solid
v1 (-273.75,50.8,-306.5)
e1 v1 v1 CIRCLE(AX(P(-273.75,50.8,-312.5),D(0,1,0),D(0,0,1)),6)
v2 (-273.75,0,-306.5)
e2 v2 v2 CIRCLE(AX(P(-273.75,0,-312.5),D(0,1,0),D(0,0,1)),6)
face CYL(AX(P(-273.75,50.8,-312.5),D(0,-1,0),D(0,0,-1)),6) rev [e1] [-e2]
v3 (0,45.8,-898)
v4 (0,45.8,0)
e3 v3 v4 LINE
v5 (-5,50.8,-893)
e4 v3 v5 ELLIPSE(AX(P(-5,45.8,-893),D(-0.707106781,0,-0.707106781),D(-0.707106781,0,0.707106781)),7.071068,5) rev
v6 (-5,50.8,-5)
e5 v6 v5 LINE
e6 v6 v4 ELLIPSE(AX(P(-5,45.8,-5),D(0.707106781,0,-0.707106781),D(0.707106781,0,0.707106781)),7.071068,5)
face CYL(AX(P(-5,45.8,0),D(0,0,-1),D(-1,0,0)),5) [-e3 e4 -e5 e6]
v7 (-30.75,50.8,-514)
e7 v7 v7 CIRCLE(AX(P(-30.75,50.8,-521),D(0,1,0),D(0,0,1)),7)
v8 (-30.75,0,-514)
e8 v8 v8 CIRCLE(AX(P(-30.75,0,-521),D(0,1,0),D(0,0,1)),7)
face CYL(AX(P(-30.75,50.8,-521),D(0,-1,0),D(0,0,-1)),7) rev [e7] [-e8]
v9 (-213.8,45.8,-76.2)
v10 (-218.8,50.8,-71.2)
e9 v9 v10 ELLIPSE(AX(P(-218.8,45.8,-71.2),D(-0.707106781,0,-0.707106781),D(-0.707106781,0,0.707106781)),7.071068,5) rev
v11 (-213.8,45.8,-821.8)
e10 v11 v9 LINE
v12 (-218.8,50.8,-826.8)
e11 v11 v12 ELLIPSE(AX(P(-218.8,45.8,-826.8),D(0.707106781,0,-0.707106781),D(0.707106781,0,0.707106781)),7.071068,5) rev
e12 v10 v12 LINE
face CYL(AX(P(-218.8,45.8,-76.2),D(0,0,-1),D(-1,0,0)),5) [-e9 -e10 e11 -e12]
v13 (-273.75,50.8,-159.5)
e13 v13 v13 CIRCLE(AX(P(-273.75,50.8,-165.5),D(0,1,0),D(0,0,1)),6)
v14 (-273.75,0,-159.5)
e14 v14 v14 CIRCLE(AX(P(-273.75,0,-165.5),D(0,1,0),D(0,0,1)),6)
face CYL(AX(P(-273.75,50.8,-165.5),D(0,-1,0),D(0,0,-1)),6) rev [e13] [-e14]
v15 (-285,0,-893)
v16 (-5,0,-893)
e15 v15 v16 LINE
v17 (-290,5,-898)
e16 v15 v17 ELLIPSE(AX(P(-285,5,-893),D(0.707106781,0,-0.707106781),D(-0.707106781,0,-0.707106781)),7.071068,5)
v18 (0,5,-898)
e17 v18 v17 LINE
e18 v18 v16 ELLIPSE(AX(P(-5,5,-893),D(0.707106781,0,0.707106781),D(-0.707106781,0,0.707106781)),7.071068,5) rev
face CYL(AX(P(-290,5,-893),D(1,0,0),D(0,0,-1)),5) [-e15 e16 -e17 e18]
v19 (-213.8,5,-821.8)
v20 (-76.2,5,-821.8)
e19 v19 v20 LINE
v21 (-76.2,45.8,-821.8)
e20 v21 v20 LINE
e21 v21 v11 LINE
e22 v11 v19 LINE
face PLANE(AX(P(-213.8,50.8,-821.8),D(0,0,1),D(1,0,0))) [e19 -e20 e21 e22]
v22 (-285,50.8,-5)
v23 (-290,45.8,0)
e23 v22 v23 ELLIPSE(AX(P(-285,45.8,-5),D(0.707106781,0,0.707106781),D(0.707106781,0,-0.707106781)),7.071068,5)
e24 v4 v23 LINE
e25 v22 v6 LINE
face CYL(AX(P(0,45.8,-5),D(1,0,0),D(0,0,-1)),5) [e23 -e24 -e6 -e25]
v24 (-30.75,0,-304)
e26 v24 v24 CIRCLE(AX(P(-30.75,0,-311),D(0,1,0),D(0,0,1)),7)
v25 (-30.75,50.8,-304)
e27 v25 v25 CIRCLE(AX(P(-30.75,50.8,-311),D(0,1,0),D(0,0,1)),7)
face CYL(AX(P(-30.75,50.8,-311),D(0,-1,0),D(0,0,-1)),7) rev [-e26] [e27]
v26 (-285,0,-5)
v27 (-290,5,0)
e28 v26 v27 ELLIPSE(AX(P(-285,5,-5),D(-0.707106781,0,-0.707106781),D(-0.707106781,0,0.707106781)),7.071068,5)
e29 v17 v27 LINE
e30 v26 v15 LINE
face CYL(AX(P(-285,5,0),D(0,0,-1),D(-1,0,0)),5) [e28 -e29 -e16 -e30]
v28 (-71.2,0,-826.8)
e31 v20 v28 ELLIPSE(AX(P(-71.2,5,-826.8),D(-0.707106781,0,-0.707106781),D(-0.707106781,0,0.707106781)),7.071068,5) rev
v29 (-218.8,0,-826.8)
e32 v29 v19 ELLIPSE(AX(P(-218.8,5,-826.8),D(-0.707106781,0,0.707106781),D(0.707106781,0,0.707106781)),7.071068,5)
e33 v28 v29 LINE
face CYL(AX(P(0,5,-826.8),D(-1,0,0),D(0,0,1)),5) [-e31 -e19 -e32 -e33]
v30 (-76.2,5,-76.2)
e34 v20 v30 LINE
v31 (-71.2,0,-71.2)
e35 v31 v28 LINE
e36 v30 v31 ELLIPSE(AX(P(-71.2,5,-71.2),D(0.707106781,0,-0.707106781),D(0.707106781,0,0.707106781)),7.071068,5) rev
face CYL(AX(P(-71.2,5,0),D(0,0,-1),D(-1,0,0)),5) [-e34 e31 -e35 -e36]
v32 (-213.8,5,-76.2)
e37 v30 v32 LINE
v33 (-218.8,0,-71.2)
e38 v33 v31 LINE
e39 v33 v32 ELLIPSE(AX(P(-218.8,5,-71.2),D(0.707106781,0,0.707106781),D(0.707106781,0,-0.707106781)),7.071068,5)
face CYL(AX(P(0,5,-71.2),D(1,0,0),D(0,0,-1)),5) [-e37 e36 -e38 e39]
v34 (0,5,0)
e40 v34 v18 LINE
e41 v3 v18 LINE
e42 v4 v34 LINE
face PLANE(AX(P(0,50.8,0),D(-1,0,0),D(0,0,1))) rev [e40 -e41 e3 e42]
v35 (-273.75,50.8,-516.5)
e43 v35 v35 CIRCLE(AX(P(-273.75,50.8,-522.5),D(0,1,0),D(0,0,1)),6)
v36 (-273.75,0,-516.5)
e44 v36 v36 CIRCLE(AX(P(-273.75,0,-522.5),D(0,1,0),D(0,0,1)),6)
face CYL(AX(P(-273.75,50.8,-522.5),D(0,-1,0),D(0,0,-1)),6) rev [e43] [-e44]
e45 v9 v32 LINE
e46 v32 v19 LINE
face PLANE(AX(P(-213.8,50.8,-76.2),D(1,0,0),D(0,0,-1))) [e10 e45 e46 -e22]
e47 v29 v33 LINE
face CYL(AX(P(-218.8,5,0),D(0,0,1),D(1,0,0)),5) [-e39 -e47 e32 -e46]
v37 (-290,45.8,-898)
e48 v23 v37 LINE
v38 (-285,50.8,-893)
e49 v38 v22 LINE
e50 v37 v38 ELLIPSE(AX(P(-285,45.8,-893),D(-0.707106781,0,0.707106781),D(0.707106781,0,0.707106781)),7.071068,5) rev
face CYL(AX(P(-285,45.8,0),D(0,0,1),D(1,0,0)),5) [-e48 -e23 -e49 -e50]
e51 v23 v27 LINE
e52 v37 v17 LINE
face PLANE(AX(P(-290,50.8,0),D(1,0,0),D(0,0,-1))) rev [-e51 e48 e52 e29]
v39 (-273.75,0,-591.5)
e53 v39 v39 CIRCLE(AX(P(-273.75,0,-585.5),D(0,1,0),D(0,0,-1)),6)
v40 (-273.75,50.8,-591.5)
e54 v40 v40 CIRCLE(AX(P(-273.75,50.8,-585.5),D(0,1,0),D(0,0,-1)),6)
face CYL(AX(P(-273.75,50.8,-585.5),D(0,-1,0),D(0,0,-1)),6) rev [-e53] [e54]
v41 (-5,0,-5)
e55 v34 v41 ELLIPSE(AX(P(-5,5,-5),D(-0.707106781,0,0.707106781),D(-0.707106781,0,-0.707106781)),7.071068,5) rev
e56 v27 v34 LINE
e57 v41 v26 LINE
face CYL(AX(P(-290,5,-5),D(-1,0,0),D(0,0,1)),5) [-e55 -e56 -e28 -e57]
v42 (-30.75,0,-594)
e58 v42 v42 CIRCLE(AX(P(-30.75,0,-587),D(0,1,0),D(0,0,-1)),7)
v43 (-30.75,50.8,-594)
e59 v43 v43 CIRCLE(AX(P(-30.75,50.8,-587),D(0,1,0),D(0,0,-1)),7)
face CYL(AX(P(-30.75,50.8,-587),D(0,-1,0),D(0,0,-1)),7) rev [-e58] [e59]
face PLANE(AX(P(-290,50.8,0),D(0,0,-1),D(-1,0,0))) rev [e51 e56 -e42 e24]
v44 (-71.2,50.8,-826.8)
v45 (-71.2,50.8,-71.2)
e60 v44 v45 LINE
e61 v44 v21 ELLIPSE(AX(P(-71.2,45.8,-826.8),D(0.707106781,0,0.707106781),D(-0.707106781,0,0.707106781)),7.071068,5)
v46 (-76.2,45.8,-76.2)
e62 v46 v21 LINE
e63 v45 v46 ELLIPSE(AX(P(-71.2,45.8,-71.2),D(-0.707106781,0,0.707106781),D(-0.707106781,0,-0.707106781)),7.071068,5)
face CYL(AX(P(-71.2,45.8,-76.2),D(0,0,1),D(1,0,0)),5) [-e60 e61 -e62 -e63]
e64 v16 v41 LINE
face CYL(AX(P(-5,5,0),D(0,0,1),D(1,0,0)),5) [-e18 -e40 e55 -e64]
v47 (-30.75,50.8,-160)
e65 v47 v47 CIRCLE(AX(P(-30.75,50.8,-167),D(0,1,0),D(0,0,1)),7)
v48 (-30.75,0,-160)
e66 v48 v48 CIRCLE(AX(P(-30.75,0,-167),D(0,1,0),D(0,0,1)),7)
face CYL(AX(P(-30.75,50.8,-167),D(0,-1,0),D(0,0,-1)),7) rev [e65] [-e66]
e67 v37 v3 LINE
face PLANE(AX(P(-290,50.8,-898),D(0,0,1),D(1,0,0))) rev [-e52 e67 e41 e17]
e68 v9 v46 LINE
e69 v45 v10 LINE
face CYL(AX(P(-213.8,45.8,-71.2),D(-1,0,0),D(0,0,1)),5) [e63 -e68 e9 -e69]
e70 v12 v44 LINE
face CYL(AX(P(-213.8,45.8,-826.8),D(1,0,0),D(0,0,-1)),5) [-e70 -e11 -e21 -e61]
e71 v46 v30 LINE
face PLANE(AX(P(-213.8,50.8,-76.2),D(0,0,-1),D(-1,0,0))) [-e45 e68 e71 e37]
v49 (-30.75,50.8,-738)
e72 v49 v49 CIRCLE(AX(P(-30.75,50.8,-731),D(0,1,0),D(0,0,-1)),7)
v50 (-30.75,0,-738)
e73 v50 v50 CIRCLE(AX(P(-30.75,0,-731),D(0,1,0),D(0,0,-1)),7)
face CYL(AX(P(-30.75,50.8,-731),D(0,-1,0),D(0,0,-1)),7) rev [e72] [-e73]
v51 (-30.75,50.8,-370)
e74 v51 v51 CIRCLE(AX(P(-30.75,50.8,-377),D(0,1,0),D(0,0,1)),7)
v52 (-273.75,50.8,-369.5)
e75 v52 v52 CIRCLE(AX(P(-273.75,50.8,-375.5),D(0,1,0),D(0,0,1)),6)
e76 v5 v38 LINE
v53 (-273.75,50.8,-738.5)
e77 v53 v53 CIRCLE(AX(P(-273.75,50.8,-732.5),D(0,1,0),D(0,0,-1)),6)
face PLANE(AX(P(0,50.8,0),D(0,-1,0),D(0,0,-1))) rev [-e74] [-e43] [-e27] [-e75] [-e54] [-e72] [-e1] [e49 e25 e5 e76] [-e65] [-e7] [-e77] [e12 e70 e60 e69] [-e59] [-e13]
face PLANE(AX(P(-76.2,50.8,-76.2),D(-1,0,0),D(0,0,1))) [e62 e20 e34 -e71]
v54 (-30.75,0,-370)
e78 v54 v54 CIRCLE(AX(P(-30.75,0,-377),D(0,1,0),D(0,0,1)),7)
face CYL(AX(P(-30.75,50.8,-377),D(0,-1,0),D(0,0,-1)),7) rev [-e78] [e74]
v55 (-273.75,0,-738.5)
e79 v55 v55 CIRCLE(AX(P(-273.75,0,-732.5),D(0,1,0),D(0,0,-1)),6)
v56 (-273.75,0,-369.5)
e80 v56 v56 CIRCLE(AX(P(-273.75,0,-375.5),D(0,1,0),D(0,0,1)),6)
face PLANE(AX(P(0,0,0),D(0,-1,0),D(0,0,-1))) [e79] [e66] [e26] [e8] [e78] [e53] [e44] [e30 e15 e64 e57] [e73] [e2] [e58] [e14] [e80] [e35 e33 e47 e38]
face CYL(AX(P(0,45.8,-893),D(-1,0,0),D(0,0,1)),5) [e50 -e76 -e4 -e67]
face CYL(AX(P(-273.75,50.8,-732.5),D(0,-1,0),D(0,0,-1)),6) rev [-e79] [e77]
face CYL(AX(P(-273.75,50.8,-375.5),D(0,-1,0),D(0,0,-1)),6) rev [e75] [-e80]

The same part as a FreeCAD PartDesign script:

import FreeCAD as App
import Part
import Sketcher
Q = App.Units.Quantity


def edges_at(feature, points):
    """Names of the edges that pass closest to the given points."""
    edges = feature.Shape.Edges
    near = lambda p: min(range(len(edges)), key=lambda i: edges[i].distToShape(Part.Vertex(*p))[0])
    return sorted({f"Edge{near(p) + 1}" for p in points})


def add_polygon(sketch, points):
    """Adds a closed chain of lines whose ends are joined by coincident constraints."""
    first, n = sketch.GeometryCount, len(points)
    for a, b in zip(points, points[1:] + points[:1]):
        sketch.addGeometry(Part.LineSegment(App.Vector(*a, 0), App.Vector(*b, 0)), False)
    for i in range(n):
        sketch.addConstraint(Sketcher.Constraint("Coincident", first + i, 2, first + (i + 1) % n, 1))

doc = App.newDocument("Part")
body = doc.addObject("PartDesign::Body", "Body")

# Sketch on XZ plane
sketch1 = doc.addObject("Sketcher::SketchObject", "Sketch")
body.addObject(sketch1)
sketch1.AttachmentSupport = (doc.XZ_Plane, [""])
sketch1.MapMode = "FlatFace"
add_polygon(sketch1, [(-290, -898), (-290, 0), (0, 0), (0, -898)])  # lines 0-3
sketch1.addGeometry(Part.Circle(App.Vector(-274, -166, 0), App.Vector(0, 0, 1), 6), False)  # 4
sketch1.addGeometry(Part.Circle(App.Vector(-274, -312, 0), App.Vector(0, 0, 1), 6), False)  # 5
sketch1.addGeometry(Part.Circle(App.Vector(-274, -376, 0), App.Vector(0, 0, 1), 6), False)  # 6
sketch1.addGeometry(Part.Circle(App.Vector(-31, -167, 0), App.Vector(0, 0, 1), 7), False)  # 7
sketch1.addGeometry(Part.Circle(App.Vector(-31, -311, 0), App.Vector(0, 0, 1), 7), False)  # 8
sketch1.addGeometry(Part.Circle(App.Vector(-31, -377, 0), App.Vector(0, 0, 1), 7), False)  # 9
sketch1.addGeometry(Part.Circle(App.Vector(-274, -522, 0), App.Vector(0, 0, 1), 6), False)  # 10
sketch1.addGeometry(Part.Circle(App.Vector(-274, -586, 0), App.Vector(0, 0, 1), 6), False)  # 11
sketch1.addGeometry(Part.Circle(App.Vector(-274, -732, 0), App.Vector(0, 0, 1), 6), False)  # 12
add_polygon(sketch1, [(-76, -76), (-214, -76), (-214, -822), (-76, -822)])  # lines 13-16
sketch1.addGeometry(Part.Circle(App.Vector(-31, -521, 0), App.Vector(0, 0, 1), 7), False)  # 17
sketch1.addGeometry(Part.Circle(App.Vector(-31, -587, 0), App.Vector(0, 0, 1), 7), False)  # 18
sketch1.addGeometry(Part.Circle(App.Vector(-31, -731, 0), App.Vector(0, 0, 1), 7), False)  # 19
sketch1.addConstraint([
    Sketcher.Constraint("Vertical", 0),
    Sketcher.Constraint("Horizontal", 1),
    Sketcher.Constraint("Vertical", 2),
    Sketcher.Constraint("Horizontal", 3),
    Sketcher.Constraint("Horizontal", 13),
    Sketcher.Constraint("Vertical", 14),
    Sketcher.Constraint("Horizontal", 15),
    Sketcher.Constraint("Vertical", 16),
    Sketcher.Constraint("Coincident", 1, 2, -1, 1),
    Sketcher.Constraint("Equal", 4, 5),
    Sketcher.Constraint("Equal", 5, 6),
    Sketcher.Constraint("Equal", 7, 8),
    Sketcher.Constraint("Equal", 8, 9),
    Sketcher.Constraint("Equal", 6, 10),
    Sketcher.Constraint("Equal", 10, 11),
    Sketcher.Constraint("Equal", 11, 12),
    Sketcher.Constraint("Equal", 9, 17),
    Sketcher.Constraint("Equal", 17, 18),
    Sketcher.Constraint("Equal", 18, 19),
    Sketcher.Constraint("Vertical", 4, 3, 5, 3),
    Sketcher.Constraint("Vertical", 5, 3, 6, 3),
    Sketcher.Constraint("Vertical", 7, 3, 8, 3),
    Sketcher.Constraint("Vertical", 8, 3, 9, 3),
    Sketcher.Constraint("Vertical", 6, 3, 10, 3),
    Sketcher.Constraint("Vertical", 10, 3, 11, 3),
    Sketcher.Constraint("Vertical", 11, 3, 12, 3),
    Sketcher.Constraint("Vertical", 9, 3, 17, 3),
    Sketcher.Constraint("Vertical", 17, 3, 18, 3),
    Sketcher.Constraint("Vertical", 18, 3, 19, 3),
    Sketcher.Constraint("Diameter", 4, Q("12 mm")),
    Sketcher.Constraint("Diameter", 7, Q("14 mm")),
    Sketcher.Constraint("DistanceX", 1, 1, 1, 2, Q("290 mm")),
    Sketcher.Constraint("DistanceY", 0, 1, 0, 2, Q("898 mm")),
    Sketcher.Constraint("DistanceX", 13, 2, 13, 1, Q("137.6 mm")),
    Sketcher.Constraint("DistanceY", 14, 2, 14, 1, Q("745.6 mm")),
    Sketcher.Constraint("DistanceY", 7, 3, -1, 1, Q("167 mm")),
    Sketcher.Constraint("DistanceY", 8, 3, -1, 1, Q("311 mm")),
    Sketcher.Constraint("DistanceY", 9, 3, -1, 1, Q("377 mm")),
    Sketcher.Constraint("DistanceY", 17, 3, -1, 1, Q("521 mm")),
    Sketcher.Constraint("DistanceY", 18, 3, -1, 1, Q("587 mm")),
    Sketcher.Constraint("DistanceY", 19, 3, -1, 1, Q("731 mm")),
    Sketcher.Constraint("DistanceY", 5, 3, 4, 3, Q("147 mm")),
    Sketcher.Constraint("DistanceY", 6, 3, 5, 3, Q("63 mm")),
    Sketcher.Constraint("DistanceX", 4, 3, 7, 3, Q("243 mm")),
    Sketcher.Constraint("DistanceY", 10, 3, 6, 3, Q("147 mm")),
    Sketcher.Constraint("DistanceY", 11, 3, 10, 3, Q("63 mm")),
    Sketcher.Constraint("DistanceY", 12, 3, 11, 3, Q("147 mm")),
    Sketcher.Constraint("DistanceY", 4, 3, -1, 1, Q("165.5 mm")),
    Sketcher.Constraint("DistanceX", 13, 2, -1, 1, Q("213.8 mm")),
    Sketcher.Constraint("DistanceY", 13, 2, -1, 1, Q("76.2 mm")),
    Sketcher.Constraint("DistanceX", 4, 3, -1, 1, Q("273.75 mm")),
])
pad1 = doc.addObject("PartDesign::Pad", "Pad")
body.addObject(pad1)
pad1.Profile = sketch1
pad1.Length = 50.8
pad1.Reversed = True
doc.recompute()

fillet = doc.addObject("PartDesign::Fillet", "Fillet")
body.addObject(fillet)
fillet.Base = (pad1, edges_at(pad1, [
    (-290, 50.8, -449),
    (-145, 50.8, 0),
    (-76.2, 50.8, -449),
    (-145, 50.8, -821.8),
    (-213.8, 50.8, -449),
    (-145, 50.8, -76.2),
    (0, 50.8, -449),
    (-145, 50.8, -898),
]))
fillet.Radius = 5
doc.recompute()

fillet2 = doc.addObject("PartDesign::Fillet", "Fillet001")
body.addObject(fillet2)
fillet2.Base = (fillet, edges_at(fillet, [
    (-76.2, 0, -449),
    (-145, 0, -821.8),
    (-213.8, 0, -449),
    (-145, 0, -76.2),
    (-145, 0, 0),
    (-290, 0, -449),
    (-145, 0, -898),
    (0, 0, -449),
]))
fillet2.Radius = 5

doc.recompute()
